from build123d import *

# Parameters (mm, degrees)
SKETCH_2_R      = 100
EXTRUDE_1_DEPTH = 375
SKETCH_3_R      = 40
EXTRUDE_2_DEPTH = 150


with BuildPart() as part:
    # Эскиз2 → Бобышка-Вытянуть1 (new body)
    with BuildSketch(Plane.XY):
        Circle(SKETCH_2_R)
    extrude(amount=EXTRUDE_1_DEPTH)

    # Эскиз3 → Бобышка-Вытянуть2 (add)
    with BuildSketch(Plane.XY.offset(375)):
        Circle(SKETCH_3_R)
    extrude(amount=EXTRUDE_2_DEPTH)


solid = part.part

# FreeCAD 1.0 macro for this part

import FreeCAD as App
import Part
import Sketcher

V = App.Vector
Q = App.Units.Quantity

doc = App.newDocument("Part")
body = doc.addObject("PartDesign::Body", "Body")

sketch1 = body.newObject("Sketcher::SketchObject", "Sketch")
sketch1.AttachmentSupport = (doc.getObject("XY_Plane"), [""])
sketch1.MapMode = "FlatFace"
sketch1.addGeometry(Part.Circle(V(0, 0, 0), V(0, 0, 1), 100), False)
sketch1.addConstraint([
    Sketcher.Constraint("Coincident", 0, 3, -1, 1),
    Sketcher.Constraint("Diameter", 0, Q("200 mm")),
])
pad1 = body.newObject("PartDesign::Pad", "Pad")
pad1.Profile = sketch1
pad1.Length = 375

sketch2 = body.newObject("Sketcher::SketchObject", "Sketch001")
sketch2.AttachmentSupport = (doc.getObject("XY_Plane"), [""])
sketch2.MapMode = "FlatFace"
sketch2.AttachmentOffset = App.Placement(V(0, 0, 375), App.Rotation())
sketch2.addGeometry(Part.Circle(V(0, 0, 0), V(0, 0, 1), 40), False)
sketch2.addConstraint([
    Sketcher.Constraint("Coincident", 0, 3, -1, 1),
    Sketcher.Constraint("Diameter", 0, Q("80 mm")),
])
pad2 = body.newObject("PartDesign::Pad", "Pad001")
pad2.Profile = sketch2
pad2.Length = 150

doc.recompute()
